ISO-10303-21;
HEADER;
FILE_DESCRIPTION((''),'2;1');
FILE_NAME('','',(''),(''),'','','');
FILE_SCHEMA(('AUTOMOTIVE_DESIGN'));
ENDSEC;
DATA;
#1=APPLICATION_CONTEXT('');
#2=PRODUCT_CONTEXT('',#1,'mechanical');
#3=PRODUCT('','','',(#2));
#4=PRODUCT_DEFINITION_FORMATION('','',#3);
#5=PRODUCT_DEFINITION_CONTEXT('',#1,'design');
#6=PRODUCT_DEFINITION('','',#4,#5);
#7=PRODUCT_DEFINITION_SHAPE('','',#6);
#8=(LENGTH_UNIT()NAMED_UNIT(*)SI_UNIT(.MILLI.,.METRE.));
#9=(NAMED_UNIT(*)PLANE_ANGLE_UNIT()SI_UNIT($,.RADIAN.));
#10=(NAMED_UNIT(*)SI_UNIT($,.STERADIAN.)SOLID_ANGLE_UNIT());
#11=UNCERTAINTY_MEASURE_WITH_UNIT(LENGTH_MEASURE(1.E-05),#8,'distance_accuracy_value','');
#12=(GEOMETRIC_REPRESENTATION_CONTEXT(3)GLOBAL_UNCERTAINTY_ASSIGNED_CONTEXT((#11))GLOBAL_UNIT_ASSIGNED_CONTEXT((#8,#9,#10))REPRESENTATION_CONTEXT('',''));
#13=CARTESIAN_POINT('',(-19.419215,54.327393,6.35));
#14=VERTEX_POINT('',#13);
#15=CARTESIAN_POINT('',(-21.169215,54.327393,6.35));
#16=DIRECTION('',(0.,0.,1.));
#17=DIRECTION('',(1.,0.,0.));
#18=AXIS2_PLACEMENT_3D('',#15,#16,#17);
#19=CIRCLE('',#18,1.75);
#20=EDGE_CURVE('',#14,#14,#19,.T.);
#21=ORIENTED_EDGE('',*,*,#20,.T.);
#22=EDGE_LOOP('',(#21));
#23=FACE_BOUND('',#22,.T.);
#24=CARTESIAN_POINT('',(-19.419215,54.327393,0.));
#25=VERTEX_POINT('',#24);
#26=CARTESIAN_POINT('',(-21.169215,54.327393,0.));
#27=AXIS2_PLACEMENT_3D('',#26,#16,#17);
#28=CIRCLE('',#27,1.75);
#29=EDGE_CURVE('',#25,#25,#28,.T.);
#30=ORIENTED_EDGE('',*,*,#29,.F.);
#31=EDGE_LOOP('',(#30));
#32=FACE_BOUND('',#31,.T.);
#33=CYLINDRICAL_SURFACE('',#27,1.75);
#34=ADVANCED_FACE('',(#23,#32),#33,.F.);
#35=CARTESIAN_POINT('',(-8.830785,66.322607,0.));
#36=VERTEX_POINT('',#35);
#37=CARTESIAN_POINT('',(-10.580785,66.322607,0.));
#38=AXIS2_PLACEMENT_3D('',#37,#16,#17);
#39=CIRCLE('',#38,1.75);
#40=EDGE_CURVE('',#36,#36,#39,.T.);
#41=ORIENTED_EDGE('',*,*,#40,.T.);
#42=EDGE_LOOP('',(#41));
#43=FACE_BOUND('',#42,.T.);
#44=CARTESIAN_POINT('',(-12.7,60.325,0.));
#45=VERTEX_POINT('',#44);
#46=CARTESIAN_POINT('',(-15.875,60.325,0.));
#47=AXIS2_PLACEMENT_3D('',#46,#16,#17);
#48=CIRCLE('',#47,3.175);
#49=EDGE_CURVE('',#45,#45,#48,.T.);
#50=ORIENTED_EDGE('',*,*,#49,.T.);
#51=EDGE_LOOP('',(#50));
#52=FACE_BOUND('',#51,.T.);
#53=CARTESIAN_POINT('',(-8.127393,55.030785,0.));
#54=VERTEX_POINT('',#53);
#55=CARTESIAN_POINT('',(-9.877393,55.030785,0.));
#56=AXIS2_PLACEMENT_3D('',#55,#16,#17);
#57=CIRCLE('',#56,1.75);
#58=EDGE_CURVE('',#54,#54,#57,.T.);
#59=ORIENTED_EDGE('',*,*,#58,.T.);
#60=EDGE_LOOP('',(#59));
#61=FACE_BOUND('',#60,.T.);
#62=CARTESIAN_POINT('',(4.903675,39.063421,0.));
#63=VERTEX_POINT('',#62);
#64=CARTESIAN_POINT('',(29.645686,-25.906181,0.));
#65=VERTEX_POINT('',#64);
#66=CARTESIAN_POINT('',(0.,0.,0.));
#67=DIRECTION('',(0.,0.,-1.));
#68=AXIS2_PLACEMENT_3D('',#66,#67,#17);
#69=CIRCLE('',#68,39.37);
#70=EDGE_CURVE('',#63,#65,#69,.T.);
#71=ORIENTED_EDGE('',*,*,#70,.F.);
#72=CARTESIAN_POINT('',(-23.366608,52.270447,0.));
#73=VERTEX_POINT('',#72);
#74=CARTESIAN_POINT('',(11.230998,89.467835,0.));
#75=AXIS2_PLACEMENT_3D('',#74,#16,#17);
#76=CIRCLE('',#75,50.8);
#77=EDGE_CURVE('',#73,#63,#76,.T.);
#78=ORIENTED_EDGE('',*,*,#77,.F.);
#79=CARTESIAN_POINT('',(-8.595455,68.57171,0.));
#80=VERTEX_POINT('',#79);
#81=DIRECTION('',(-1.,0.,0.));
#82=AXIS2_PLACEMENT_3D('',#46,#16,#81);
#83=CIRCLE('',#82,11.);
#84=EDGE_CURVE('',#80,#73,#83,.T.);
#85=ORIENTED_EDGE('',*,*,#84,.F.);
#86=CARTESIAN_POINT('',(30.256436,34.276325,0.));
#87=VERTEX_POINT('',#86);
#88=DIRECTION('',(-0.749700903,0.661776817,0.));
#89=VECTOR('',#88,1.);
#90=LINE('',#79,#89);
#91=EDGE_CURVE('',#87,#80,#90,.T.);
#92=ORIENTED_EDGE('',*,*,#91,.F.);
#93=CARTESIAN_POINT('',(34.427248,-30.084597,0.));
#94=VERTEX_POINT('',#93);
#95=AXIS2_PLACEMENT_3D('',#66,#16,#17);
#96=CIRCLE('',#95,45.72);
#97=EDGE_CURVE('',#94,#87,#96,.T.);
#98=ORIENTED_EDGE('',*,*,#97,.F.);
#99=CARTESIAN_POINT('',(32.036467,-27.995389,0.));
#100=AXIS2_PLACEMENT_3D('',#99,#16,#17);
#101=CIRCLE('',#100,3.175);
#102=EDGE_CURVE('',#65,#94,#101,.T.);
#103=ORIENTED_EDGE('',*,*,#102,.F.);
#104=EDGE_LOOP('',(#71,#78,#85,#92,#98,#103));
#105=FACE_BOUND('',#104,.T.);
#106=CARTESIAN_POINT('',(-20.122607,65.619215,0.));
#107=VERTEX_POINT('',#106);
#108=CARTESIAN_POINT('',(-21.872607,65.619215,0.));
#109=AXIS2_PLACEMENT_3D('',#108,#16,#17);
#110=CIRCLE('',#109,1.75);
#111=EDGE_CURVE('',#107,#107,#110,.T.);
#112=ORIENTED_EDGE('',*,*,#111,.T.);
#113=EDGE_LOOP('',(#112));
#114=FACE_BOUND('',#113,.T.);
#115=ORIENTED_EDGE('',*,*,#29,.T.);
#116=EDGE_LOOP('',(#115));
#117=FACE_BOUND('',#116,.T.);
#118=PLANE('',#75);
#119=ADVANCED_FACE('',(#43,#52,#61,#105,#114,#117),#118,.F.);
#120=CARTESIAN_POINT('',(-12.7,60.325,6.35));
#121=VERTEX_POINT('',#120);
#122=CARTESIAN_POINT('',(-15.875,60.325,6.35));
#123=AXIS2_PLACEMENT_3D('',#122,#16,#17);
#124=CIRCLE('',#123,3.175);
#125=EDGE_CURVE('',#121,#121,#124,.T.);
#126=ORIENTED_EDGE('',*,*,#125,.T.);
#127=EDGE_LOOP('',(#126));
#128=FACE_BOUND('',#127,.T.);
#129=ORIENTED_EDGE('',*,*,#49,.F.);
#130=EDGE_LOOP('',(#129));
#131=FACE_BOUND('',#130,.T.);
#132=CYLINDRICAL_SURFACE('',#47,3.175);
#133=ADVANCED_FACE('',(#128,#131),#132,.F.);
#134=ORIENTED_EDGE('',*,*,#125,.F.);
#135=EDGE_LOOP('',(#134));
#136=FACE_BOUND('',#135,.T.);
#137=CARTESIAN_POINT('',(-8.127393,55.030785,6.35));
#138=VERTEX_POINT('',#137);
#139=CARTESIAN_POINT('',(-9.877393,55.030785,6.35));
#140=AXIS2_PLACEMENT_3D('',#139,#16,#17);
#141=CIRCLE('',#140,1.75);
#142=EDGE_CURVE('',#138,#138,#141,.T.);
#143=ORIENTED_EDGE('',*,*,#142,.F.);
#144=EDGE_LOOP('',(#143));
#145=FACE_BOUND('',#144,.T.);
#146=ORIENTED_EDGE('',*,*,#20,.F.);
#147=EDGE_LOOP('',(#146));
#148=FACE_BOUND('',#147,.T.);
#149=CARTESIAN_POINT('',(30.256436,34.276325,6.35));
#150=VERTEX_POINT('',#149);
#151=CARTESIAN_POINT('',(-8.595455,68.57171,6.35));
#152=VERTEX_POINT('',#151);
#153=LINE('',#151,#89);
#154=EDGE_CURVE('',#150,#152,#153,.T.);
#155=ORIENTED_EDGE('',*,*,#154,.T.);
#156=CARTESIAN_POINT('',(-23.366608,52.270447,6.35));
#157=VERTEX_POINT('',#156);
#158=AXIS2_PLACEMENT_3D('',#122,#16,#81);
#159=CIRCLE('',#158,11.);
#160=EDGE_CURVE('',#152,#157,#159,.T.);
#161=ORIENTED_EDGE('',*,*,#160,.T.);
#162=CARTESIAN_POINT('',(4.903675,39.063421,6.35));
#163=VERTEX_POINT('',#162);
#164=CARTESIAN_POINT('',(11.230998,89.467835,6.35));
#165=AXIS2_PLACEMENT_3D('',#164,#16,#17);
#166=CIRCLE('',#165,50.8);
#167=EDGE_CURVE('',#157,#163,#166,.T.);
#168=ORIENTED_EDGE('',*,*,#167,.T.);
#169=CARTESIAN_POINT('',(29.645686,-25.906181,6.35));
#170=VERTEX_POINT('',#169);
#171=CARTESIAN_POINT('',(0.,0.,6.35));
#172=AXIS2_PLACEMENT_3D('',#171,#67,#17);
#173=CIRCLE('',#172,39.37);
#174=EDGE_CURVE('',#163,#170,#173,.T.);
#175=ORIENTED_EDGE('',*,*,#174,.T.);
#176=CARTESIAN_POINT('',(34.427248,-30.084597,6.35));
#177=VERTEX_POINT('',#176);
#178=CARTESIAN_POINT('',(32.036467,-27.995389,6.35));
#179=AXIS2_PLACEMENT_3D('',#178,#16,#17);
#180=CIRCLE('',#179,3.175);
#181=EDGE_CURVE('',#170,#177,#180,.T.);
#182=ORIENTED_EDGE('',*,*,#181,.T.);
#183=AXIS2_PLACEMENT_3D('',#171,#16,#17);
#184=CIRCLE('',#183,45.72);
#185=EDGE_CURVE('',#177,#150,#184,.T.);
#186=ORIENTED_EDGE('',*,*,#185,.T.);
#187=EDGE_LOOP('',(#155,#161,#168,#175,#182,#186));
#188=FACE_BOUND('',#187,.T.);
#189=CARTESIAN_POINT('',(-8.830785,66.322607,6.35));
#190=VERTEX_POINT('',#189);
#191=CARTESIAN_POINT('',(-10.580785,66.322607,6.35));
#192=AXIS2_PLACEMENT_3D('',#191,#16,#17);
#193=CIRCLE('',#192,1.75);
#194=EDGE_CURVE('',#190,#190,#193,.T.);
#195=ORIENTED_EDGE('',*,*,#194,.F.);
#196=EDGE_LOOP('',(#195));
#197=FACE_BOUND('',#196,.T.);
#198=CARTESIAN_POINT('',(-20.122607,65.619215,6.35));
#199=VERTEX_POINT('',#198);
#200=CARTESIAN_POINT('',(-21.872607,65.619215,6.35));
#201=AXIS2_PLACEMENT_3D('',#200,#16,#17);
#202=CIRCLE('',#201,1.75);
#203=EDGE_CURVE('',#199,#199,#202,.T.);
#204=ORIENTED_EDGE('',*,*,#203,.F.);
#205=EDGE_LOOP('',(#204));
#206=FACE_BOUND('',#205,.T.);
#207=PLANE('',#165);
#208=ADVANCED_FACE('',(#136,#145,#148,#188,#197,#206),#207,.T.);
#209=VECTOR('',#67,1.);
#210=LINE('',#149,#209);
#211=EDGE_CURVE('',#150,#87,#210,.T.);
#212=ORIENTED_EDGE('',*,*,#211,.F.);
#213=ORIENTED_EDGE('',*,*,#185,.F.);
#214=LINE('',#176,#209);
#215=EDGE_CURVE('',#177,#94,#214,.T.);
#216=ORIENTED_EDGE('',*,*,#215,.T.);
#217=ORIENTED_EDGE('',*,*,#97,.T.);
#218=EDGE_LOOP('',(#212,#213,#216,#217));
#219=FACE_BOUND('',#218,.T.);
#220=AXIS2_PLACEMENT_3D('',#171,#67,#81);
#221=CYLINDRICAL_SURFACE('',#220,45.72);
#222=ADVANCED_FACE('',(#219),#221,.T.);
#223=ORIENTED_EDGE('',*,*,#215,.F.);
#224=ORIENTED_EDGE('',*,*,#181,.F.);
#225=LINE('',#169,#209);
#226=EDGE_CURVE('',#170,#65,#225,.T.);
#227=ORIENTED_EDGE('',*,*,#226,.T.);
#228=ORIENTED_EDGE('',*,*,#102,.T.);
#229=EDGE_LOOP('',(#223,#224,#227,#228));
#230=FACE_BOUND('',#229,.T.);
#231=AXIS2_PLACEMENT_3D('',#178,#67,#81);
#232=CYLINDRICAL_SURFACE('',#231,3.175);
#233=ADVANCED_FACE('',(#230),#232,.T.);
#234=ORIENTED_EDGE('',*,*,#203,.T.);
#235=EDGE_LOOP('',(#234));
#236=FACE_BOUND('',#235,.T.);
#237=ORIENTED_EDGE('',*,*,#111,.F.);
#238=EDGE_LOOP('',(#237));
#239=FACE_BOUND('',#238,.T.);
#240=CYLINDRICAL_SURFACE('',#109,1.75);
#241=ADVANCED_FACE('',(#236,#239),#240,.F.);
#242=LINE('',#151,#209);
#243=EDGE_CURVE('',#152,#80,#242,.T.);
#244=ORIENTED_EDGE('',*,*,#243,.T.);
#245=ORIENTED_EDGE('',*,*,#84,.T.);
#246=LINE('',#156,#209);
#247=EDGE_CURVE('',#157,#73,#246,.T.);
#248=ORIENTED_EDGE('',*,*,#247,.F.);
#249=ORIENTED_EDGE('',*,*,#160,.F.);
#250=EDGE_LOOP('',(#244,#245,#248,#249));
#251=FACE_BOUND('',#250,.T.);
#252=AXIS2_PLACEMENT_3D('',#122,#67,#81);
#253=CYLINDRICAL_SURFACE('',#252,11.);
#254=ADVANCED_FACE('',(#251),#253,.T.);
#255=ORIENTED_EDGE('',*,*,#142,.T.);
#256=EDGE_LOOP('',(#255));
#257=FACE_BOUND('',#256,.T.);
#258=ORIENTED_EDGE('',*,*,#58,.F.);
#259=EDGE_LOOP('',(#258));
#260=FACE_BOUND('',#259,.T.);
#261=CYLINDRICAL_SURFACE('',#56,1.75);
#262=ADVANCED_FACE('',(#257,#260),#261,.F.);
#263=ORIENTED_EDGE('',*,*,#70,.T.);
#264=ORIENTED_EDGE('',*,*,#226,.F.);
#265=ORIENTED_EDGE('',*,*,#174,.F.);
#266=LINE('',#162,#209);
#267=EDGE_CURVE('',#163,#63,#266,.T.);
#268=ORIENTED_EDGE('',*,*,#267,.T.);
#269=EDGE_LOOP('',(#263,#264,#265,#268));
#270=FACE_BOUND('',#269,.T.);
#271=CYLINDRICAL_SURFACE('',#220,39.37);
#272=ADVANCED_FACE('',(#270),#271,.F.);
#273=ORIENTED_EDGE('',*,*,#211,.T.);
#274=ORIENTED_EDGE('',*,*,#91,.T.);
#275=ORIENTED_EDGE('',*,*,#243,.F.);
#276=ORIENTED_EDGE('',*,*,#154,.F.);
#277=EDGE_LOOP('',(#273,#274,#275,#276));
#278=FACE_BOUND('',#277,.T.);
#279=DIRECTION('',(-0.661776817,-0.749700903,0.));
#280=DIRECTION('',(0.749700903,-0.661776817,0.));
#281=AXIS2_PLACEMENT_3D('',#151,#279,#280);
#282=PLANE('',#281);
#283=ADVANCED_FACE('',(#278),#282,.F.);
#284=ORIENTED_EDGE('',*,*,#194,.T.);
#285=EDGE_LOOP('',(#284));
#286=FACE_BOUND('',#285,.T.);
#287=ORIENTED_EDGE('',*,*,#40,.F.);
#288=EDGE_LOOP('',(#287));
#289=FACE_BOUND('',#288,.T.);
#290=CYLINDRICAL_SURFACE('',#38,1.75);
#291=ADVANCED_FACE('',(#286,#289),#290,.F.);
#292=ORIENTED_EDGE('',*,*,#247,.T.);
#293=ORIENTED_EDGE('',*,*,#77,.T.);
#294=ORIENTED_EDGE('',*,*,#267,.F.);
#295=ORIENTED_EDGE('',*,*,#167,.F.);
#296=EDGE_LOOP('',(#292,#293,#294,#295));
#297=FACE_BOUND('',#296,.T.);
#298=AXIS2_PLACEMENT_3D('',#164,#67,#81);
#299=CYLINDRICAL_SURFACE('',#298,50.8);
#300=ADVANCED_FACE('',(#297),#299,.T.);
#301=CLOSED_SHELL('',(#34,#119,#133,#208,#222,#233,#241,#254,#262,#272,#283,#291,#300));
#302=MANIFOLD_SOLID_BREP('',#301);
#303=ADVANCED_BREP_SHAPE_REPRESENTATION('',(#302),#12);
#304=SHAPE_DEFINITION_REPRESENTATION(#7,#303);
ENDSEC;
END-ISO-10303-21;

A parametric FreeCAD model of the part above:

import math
import FreeCAD as App
import Part
import Sketcher

V = App.Vector
Q = App.Units.Quantity

doc = App.newDocument("Part")
body = doc.addObject("PartDesign::Body", "Body")

sketch1 = body.newObject("Sketcher::SketchObject", "Sketch")
sketch1.AttachmentSupport = (doc.getObject("XY_Plane"), [""])
sketch1.MapMode = "FlatFace"
sketch1.addGeometry(Part.LineSegment(V(30.3, 34.3, 0), V(-8.6, 68.6, 0)), False)
sketch1.addGeometry(Part.ArcOfCircle(Part.Circle(V(-15.9, 60.3, 0), V(0, 0, 1), 11), math.radians(49), math.radians(227)), False)
sketch1.addGeometry(Part.ArcOfCircle(Part.Circle(V(11.2, 89.5, 0), V(0, 0, 1), 50.8), math.radians(-133), math.radians(-97)), False)
sketch1.addGeometry(Part.ArcOfCircle(Part.Circle(V(0, 0, 0), V(0, 0, 1), 39.4), math.radians(-41), math.radians(83)), False)
sketch1.addGeometry(Part.ArcOfCircle(Part.Circle(V(32, -28, 0), V(0, 0, 1), 3.2), math.radians(139), math.radians(319)), False)
sketch1.addGeometry(Part.ArcOfCircle(Part.Circle(V(0, 0, 0), V(0, 0, 1), 45.7), math.radians(-41), math.radians(49)), False)
sketch1.addConstraint(Sketcher.Constraint("Tangent", 0, 2, 1, 1))
sketch1.addConstraint(Sketcher.Constraint("Tangent", 1, 2, 2, 1))
sketch1.addConstraint(Sketcher.Constraint("Tangent", 2, 2, 3, 2))
sketch1.addConstraint(Sketcher.Constraint("Tangent", 3, 1, 4, 1))
sketch1.addConstraint(Sketcher.Constraint("Tangent", 4, 2, 5, 1))
sketch1.addConstraint(Sketcher.Constraint("Tangent", 5, 2, 0, 1))
sketch1.addConstraint(Sketcher.Constraint("Coincident", 3, 3, -1, 1))
sketch1.addConstraint(Sketcher.Constraint("Coincident", 5, 3, -1, 1))
sketch1.addConstraint(Sketcher.Constraint("Radius", 2, Q("2 in")))
sketch1.addConstraint(Sketcher.Constraint("Radius", 5, Q("1.8 in")))
sketch1.addConstraint(Sketcher.Constraint("Radius", 3, Q("1.55 in")))
sketch1.addConstraint(Sketcher.Constraint("Radius", 1, 11.0))
sketch1.addConstraint(Sketcher.Constraint("DistanceX", 1, 3, -1, 1, Q("0.625 in")))
sketch1.addConstraint(Sketcher.Constraint("DistanceY", -1, 1, 1, 3, Q("2.375 in")))
sketch1.addConstraint(Sketcher.Constraint("DistanceY", 4, 3, 0, 2, 96.567099))
pad1 = body.newObject("PartDesign::Pad", "Pad")
pad1.Profile = sketch1
pad1.Length = Q("0.25 in")

sketch2 = body.newObject("Sketcher::SketchObject", "Sketch001")
sketch2.AttachmentSupport = (doc.getObject("XY_Plane"), [""])
sketch2.MapMode = "FlatFace"
sketch2.AttachmentOffset = App.Placement(V(0, 0, 0.25 * 25.4), App.Rotation())
sketch2.addGeometry(Part.Circle(V(-15.9, 60.3, 0), V(0, 0, 1), 3.2), False)
sketch2.addGeometry(Part.Circle(V(-10.6, 66.3, 0), V(0, 0, 1), 1.8), False)
sketch2.addGeometry(Part.Circle(V(-9.9, 55, 0), V(0, 0, 1), 1.8), False)
sketch2.addGeometry(Part.Circle(V(-21.2, 54.3, 0), V(0, 0, 1), 1.8), False)
sketch2.addGeometry(Part.Circle(V(-21.9, 65.6, 0), V(0, 0, 1), 1.8), False)
sketch2.addConstraint(Sketcher.Constraint("Equal", 1, 2))
sketch2.addConstraint(Sketcher.Constraint("Equal", 2, 3))
sketch2.addConstraint(Sketcher.Constraint("Equal", 3, 4))
sketch2.addConstraint(Sketcher.Constraint("Diameter", 0, Q("0.25 in")))
sketch2.addConstraint(Sketcher.Constraint("Diameter", 1, 3.5))
sketch2.addConstraint(Sketcher.Constraint("DistanceX", 0, 3, -1, 1, Q("0.625 in")))
sketch2.addConstraint(Sketcher.Constraint("DistanceY", -1, 1, 0, 3, Q("2.375 in")))
sketch2.addConstraint(Sketcher.Constraint("DistanceY", 2, 3, 1, 3, 11.291822))
sketch2.addConstraint(Sketcher.Constraint("DistanceX", 3, 3, 2, 3, 11.291822))
sketch2.addConstraint(Sketcher.Constraint("DistanceX", 3, 3, 1, 3, 10.588429))
sketch2.addConstraint(Sketcher.Constraint("DistanceY", 3, 3, 4, 3, 11.291822))
sketch2.addConstraint(Sketcher.Constraint("DistanceX", 4, 3, 1, 3, 11.291822))
sketch2.addConstraint(Sketcher.Constraint("DistanceY", 2, 3, 4, 3, 10.588429))
sketch2.addConstraint(Sketcher.Constraint("DistanceX", 1, 3, -1, 1, 10.580785))
sketch2.addConstraint(Sketcher.Constraint("DistanceY", -1, 1, 1, 3, 66.322607))
pocket1 = body.newObject("PartDesign::Pocket", "Pocket")
pocket1.Profile = sketch2
pocket1.Type = "ThroughAll"

doc.recompute()
